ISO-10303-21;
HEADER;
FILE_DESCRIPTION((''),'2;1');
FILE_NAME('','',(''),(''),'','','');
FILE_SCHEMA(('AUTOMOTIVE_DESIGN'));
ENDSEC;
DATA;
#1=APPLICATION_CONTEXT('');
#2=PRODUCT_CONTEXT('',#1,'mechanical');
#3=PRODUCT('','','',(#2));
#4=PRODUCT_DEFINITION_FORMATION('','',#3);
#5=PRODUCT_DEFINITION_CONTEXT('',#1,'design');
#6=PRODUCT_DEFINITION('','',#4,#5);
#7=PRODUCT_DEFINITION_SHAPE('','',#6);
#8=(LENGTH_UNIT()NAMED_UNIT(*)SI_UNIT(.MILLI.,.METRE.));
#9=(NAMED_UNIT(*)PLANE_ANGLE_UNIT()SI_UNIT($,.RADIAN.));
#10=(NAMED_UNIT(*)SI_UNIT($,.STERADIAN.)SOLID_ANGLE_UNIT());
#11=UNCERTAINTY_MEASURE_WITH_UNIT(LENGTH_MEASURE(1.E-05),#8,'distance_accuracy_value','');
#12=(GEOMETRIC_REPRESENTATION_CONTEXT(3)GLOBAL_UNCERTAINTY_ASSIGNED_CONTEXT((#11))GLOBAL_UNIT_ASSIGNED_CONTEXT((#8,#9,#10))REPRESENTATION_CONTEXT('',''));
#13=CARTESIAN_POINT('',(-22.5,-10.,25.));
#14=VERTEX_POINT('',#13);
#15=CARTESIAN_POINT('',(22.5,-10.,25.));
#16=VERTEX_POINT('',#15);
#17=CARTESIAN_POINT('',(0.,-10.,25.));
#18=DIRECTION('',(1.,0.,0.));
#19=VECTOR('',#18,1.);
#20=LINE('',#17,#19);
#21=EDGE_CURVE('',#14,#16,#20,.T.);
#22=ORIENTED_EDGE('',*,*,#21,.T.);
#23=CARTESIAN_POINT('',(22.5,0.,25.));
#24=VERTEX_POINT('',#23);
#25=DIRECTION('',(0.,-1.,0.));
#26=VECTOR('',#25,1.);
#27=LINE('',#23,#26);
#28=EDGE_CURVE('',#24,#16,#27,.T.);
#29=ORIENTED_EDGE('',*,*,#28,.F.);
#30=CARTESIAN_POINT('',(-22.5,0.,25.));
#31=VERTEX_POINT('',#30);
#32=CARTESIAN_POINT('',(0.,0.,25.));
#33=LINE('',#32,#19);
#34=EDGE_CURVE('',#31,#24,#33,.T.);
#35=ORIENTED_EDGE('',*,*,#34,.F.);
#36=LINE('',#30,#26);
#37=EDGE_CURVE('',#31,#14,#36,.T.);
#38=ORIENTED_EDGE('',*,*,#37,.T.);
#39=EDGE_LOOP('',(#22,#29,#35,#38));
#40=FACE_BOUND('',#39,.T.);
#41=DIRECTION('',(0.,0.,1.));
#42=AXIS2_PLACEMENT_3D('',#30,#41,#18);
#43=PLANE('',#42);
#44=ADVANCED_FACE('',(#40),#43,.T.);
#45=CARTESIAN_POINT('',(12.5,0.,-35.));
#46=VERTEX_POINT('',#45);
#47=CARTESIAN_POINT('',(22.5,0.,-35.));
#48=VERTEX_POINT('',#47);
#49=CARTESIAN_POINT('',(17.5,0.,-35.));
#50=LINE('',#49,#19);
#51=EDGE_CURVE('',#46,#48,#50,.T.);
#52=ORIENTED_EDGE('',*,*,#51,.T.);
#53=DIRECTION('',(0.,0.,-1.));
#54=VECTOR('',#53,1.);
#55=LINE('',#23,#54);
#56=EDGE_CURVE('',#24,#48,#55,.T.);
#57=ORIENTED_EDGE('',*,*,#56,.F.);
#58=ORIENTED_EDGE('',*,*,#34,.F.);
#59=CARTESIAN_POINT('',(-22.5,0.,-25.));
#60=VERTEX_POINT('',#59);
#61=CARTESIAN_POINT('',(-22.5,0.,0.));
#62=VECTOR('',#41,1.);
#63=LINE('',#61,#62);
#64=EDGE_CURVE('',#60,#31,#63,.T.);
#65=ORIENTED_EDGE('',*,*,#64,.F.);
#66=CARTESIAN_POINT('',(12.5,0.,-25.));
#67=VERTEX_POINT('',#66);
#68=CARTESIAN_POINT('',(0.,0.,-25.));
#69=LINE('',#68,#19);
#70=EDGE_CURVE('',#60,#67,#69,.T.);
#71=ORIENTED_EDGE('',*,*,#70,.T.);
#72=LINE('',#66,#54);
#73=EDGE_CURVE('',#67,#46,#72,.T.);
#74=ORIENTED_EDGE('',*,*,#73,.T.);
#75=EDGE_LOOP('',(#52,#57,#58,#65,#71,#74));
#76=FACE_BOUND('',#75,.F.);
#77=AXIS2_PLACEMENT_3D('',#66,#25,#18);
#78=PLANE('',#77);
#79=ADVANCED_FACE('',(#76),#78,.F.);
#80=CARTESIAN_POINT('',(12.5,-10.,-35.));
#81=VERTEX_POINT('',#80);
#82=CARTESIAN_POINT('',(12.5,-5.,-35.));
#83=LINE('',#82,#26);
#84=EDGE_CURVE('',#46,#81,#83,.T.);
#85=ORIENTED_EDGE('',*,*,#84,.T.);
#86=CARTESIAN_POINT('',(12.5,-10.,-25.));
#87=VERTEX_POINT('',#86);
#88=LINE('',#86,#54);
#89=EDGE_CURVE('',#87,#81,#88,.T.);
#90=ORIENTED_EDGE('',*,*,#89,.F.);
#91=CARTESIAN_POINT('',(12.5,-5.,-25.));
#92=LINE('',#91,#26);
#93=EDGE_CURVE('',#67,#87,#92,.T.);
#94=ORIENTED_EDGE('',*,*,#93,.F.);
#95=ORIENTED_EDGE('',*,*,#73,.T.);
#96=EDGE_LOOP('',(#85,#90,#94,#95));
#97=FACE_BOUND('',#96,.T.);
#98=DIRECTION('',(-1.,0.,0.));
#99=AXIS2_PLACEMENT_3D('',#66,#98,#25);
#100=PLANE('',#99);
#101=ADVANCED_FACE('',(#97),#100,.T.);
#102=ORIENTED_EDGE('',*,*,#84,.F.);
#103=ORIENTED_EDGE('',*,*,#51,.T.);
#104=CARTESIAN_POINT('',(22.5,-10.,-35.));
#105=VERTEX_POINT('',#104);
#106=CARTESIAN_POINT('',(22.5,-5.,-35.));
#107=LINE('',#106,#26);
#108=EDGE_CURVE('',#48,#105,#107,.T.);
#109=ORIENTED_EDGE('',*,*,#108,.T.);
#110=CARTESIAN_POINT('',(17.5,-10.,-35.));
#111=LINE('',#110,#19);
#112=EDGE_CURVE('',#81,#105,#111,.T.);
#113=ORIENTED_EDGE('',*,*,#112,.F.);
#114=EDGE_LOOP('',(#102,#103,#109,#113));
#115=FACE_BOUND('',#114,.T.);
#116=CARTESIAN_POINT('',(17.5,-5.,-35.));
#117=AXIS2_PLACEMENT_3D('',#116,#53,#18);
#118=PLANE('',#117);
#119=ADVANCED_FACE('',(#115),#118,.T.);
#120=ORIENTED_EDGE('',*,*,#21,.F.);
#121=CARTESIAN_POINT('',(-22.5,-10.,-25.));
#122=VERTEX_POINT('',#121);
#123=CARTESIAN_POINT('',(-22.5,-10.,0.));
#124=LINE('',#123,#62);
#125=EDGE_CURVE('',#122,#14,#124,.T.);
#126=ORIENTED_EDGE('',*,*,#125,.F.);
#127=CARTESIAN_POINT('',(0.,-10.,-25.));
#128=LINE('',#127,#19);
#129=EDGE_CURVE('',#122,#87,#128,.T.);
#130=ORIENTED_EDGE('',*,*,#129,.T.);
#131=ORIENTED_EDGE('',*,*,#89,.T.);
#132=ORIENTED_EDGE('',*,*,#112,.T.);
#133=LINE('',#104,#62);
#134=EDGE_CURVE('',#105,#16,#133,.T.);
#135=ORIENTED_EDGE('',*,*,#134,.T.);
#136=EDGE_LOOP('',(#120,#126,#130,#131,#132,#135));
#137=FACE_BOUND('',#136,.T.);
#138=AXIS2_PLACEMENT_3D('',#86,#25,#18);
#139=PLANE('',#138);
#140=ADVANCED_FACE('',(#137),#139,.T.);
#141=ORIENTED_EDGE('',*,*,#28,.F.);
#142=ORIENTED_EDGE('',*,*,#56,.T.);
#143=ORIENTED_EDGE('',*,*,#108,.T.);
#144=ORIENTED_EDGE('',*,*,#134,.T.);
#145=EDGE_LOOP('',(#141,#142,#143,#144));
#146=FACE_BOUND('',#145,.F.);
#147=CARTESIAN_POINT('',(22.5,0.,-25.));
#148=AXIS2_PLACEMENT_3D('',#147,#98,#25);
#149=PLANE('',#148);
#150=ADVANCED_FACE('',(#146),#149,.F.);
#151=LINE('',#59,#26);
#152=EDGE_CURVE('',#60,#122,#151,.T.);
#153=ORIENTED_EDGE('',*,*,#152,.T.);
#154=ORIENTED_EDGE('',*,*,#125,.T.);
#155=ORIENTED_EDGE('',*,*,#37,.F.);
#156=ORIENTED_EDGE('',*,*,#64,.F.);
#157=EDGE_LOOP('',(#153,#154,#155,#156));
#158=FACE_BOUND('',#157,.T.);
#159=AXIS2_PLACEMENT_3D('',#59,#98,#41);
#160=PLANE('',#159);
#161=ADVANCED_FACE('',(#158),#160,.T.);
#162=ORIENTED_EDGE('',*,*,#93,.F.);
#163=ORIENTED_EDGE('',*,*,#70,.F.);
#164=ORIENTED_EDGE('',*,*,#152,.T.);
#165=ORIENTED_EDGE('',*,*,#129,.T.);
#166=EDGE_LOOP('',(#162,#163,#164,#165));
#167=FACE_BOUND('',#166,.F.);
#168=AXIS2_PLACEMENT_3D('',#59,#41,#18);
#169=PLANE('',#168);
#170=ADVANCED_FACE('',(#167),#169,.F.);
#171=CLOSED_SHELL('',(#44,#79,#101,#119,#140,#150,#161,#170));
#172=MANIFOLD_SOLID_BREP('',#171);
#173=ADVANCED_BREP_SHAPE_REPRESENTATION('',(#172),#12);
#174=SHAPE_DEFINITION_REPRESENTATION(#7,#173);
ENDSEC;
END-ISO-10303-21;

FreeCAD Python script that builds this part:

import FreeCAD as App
import Part
import Sketcher

V = App.Vector
Q = App.Units.Quantity


def add_polygon(sketch, points):
    """Adds a closed chain of lines whose ends are joined by coincident constraints."""
    first, n = sketch.GeometryCount, len(points)
    for a, b in zip(points, points[1:] + points[:1]):
        sketch.addGeometry(Part.LineSegment(App.Vector(*a, 0), App.Vector(*b, 0)), False)
    for i in range(n):
        sketch.addConstraint(Sketcher.Constraint("Coincident", first + i, 2, first + (i + 1) % n, 1))

doc = App.newDocument("Part")
body = doc.addObject("PartDesign::Body", "Body")

# Sketch on XZ plane
sketch1 = body.newObject("Sketcher::SketchObject", "Sketch")
sketch1.AttachmentSupport = (doc.getObject("XZ_Plane"), [""])
sketch1.MapMode = "FlatFace"
add_polygon(sketch1, [(-22.5, 25), (-22.5, -25), (22.5, -25), (22.5, 25)])  # lines 0-3
sketch1.addConstraint(Sketcher.Constraint("Vertical", 0))
sketch1.addConstraint(Sketcher.Constraint("Horizontal", 1))
sketch1.addConstraint(Sketcher.Constraint("Vertical", 2))
sketch1.addConstraint(Sketcher.Constraint("Horizontal", 3))
sketch1.addConstraint(Sketcher.Constraint("Symmetric", 0, 2, 2, 2, -1, 1))
sketch1.addConstraint(Sketcher.Constraint("DistanceX", 1, 1, 1, 2, Q("45 mm")))
sketch1.addConstraint(Sketcher.Constraint("DistanceY", 0, 2, 0, 1, Q("50 mm")))
pad1 = body.newObject("PartDesign::Pad", "Pad")
pad1.Profile = sketch1
pad1.Length = 10

# Sketch on XY plane
sketch2 = body.newObject("Sketcher::SketchObject", "Sketch001")
sketch2.AttachmentSupport = (doc.getObject("XY_Plane"), [""])
sketch2.MapMode = "FlatFace"
sketch2.AttachmentOffset = App.Placement(V(0, 0, -25), App.Rotation())
add_polygon(sketch2, [(12.5, -10), (12.5, 0), (22.5, 0), (22.5, -10)])  # lines 0-3
sketch2.addConstraint(Sketcher.Constraint("Vertical", 0))
sketch2.addConstraint(Sketcher.Constraint("Horizontal", 1))
sketch2.addConstraint(Sketcher.Constraint("Vertical", 2))
sketch2.addConstraint(Sketcher.Constraint("Horizontal", 3))
sketch2.addConstraint(Sketcher.Constraint("PointOnObject", 0, 2, -1))
sketch2.addConstraint(Sketcher.Constraint("Equal", 3, 0))
sketch2.addConstraint(Sketcher.Constraint("DistanceX", 1, 1, 1, 2, Q("10 mm")))
sketch2.addConstraint(Sketcher.Constraint("DistanceX", -1, 1, 0, 2, Q("12.5 mm")))
pad2 = body.newObject("PartDesign::Pad", "Pad001")
pad2.Profile = sketch2
pad2.Length = 10
pad2.Reversed = True

doc.recompute()
